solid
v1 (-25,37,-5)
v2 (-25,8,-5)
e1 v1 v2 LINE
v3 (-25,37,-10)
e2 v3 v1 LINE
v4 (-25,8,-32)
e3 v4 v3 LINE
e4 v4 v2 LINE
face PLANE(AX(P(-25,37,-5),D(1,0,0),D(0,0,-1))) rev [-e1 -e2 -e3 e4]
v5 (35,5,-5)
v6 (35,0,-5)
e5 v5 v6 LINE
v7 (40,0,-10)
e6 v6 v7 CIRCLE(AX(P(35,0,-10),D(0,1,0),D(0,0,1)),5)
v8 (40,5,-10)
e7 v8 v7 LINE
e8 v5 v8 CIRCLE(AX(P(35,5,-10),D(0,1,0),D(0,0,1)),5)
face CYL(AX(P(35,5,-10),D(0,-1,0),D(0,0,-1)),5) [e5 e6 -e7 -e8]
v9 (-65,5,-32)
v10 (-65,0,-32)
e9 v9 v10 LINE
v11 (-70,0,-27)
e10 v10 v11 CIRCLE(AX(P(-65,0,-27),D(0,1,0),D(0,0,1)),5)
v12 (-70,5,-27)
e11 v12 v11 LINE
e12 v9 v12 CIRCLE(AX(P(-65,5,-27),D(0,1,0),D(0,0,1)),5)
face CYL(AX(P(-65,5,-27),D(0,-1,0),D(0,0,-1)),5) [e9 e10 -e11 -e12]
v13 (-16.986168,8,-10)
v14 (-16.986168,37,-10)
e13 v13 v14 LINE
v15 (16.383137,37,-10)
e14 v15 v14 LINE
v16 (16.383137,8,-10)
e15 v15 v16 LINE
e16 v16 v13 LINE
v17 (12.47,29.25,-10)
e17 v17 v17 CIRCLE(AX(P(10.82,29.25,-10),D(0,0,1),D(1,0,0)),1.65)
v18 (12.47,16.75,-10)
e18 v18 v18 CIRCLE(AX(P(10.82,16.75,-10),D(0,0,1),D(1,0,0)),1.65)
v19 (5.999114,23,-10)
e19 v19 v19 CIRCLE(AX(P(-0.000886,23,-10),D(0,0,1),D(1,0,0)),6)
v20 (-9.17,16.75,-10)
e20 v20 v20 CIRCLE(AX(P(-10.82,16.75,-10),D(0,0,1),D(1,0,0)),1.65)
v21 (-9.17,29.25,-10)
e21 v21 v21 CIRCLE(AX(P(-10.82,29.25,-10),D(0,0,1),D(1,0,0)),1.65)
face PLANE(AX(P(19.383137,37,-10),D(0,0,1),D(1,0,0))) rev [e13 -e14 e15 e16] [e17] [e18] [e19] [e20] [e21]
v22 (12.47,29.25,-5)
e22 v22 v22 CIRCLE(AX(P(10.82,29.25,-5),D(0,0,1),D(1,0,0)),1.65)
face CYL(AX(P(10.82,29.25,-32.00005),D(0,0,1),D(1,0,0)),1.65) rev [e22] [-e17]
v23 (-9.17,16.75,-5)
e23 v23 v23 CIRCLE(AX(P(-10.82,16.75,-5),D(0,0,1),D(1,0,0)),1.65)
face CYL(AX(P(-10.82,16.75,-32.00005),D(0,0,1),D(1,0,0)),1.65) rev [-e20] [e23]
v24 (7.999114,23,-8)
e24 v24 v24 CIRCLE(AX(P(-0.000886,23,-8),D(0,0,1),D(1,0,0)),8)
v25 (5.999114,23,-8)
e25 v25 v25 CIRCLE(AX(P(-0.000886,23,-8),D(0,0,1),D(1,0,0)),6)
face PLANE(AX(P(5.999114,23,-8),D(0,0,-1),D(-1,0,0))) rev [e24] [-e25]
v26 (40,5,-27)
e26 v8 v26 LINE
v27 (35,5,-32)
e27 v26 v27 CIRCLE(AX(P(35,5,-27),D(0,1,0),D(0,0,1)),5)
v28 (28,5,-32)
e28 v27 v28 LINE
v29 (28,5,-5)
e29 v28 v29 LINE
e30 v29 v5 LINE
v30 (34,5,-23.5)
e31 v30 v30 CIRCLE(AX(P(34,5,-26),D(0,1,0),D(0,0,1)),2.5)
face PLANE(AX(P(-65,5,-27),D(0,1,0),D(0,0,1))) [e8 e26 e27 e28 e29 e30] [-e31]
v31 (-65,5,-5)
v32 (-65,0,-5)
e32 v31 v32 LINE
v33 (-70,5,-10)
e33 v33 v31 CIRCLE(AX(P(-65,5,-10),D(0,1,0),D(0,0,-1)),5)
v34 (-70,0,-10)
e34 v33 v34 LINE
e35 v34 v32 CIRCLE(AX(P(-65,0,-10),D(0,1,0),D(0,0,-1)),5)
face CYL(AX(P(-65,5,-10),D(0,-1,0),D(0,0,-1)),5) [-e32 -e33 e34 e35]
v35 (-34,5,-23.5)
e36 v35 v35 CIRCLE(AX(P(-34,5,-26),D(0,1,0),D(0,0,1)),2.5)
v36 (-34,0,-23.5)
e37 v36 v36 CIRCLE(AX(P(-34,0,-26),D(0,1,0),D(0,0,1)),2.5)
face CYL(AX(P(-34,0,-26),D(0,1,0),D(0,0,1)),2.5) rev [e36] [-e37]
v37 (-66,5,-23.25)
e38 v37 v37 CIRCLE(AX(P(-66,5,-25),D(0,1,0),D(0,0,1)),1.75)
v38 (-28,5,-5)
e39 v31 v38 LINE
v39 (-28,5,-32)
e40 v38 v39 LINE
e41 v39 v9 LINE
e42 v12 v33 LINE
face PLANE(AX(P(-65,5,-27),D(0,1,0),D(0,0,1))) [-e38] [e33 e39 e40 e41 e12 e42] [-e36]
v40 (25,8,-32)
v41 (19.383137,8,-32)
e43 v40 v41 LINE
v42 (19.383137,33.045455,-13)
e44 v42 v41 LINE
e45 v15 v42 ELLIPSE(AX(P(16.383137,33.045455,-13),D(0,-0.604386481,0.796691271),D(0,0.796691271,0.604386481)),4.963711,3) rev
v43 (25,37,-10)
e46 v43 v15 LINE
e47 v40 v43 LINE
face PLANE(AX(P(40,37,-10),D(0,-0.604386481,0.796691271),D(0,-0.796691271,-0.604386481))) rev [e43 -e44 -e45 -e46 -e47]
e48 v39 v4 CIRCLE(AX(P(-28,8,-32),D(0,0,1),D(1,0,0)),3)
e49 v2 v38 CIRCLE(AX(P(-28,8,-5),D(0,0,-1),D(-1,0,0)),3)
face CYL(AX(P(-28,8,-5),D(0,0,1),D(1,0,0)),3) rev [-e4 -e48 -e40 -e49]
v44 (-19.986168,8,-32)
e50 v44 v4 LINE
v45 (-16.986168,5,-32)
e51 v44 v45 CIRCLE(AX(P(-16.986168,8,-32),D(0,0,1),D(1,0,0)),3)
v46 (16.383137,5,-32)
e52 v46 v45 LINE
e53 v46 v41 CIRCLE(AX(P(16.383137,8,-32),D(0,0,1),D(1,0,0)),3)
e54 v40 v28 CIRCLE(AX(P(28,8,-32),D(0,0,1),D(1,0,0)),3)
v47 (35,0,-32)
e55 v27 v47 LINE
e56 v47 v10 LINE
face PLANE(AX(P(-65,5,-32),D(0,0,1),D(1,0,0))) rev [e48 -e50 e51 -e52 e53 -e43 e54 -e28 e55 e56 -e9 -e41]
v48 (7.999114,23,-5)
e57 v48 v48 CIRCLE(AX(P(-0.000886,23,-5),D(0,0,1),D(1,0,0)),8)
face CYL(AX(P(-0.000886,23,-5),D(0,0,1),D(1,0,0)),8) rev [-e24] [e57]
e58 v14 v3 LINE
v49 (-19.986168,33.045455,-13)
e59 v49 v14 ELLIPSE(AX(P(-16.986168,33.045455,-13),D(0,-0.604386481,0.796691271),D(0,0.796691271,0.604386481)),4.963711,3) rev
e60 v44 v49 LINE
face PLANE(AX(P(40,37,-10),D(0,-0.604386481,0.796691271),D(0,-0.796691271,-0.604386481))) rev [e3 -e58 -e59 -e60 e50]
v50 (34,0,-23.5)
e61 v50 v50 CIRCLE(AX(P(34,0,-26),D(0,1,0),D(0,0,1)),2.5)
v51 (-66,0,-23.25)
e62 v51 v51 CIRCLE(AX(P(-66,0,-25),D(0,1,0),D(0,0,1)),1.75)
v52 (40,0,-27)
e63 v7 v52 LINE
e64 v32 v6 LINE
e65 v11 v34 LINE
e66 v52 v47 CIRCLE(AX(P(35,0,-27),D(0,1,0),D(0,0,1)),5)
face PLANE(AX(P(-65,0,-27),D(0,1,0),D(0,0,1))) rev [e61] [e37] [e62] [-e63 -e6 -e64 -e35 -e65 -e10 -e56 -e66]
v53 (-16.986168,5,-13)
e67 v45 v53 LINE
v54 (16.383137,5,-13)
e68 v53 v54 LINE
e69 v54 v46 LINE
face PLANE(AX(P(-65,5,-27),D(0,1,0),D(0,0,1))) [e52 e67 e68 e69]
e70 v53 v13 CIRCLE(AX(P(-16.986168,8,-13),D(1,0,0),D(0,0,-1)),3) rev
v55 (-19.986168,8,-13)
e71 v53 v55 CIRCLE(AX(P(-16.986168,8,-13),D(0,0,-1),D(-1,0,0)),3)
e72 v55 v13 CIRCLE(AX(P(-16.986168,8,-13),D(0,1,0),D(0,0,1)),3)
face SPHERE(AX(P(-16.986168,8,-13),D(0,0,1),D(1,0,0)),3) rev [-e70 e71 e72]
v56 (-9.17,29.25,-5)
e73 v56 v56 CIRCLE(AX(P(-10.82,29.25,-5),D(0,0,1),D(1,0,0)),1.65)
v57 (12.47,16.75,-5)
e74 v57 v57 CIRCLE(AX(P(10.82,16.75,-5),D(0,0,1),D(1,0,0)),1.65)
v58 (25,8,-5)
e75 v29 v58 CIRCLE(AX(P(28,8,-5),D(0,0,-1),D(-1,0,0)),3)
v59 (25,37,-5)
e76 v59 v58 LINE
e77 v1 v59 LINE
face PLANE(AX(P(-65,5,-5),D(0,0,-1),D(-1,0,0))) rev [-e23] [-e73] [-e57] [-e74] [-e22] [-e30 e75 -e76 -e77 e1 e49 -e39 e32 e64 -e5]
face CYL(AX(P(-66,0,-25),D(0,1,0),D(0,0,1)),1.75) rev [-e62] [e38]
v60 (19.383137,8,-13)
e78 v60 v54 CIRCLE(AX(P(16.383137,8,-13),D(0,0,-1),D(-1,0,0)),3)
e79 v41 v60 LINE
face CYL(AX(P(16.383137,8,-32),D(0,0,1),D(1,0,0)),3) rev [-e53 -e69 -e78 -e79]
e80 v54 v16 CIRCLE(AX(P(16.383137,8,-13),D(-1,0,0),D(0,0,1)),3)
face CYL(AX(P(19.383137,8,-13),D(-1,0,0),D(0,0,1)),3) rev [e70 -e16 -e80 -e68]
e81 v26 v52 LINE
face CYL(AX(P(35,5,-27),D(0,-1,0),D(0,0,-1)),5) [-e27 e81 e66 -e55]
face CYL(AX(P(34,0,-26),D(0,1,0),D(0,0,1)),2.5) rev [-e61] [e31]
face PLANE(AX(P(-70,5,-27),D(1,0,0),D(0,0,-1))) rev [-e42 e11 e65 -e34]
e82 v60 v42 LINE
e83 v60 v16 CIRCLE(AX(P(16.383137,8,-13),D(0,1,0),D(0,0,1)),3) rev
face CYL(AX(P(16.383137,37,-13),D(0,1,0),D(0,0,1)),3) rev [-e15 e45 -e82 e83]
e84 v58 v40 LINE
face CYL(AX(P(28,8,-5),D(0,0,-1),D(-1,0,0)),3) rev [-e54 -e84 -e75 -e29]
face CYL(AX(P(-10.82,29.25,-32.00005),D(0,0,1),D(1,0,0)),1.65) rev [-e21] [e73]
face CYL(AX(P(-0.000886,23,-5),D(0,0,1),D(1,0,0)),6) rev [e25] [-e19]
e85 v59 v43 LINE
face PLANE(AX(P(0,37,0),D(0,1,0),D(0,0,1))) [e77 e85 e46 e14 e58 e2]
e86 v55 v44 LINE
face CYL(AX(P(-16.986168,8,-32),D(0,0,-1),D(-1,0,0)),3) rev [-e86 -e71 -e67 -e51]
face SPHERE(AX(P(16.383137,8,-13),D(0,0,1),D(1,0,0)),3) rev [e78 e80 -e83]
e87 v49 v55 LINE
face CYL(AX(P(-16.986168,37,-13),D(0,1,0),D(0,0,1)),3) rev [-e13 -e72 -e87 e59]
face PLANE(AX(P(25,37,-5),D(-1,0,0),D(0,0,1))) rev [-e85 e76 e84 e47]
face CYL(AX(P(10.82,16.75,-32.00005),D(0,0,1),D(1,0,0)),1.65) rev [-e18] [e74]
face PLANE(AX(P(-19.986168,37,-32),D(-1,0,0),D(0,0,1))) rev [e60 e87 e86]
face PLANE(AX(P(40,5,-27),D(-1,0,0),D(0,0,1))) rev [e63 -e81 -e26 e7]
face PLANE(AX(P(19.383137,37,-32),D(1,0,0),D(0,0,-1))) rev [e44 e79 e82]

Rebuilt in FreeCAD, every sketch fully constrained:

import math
import FreeCAD as App
import Part
import Sketcher

V = App.Vector


def edges_at(feature, points):
    """Names of the edges that pass closest to the given points."""
    edges = feature.Shape.Edges
    near = lambda p: min(range(len(edges)), key=lambda i: edges[i].distToShape(Part.Vertex(*p))[0])
    return sorted({f"Edge{near(p) + 1}" for p in points})


def add_polygon(sketch, points):
    """Adds a closed chain of lines whose ends are joined by coincident constraints."""
    first, n = sketch.GeometryCount, len(points)
    for a, b in zip(points, points[1:] + points[:1]):
        sketch.addGeometry(Part.LineSegment(App.Vector(*a, 0), App.Vector(*b, 0)), False)
    for i in range(n):
        sketch.addConstraint(Sketcher.Constraint("Coincident", first + i, 2, first + (i + 1) % n, 1))

doc = App.newDocument("Part")
params = doc.addObject("Spreadsheet::Sheet", "Params")
for row, (alias, value) in enumerate([
    ("sketch1_radius", "5 mm"),
    ("sketch1_width", "100 mm"),
    ("sketch1_height", "17 mm"),
    ("pad1_length", "5 mm"),
    ("sketch2_diameter", "5 mm"),
    ("sketch2_diameter2", "3.5 mm"),
    ("sketch3_width", "50 mm"),
    ("sketch3_height", "27 mm"),
    ("sketch3_height2", "22 mm"),
    ("pad2_length", "32 mm"),
    ("sketch4_diameter", "3.3 mm"),
    ("sketch5_diameter", "12 mm"),
    ("hole_diameter", "12 mm"),
    ("hole_cbore_diameter", "16 mm"),
    ("hole_cbore_depth", "3 mm"),
    ("fillet_radius", "3 mm"),
    ("sketch6_width", "29 mm"),
    ("sketch6_height", "22 mm"),
], start=1):
    params.set(f"A{row}", alias)
    params.set(f"B{row}", "=" + value)
    params.setAlias(f"B{row}", alias)

body = doc.addObject("PartDesign::Body", "Body")

# Sketch on XZ plane
sketch1 = body.newObject("Sketcher::SketchObject", "Sketch")
sketch1.AttachmentSupport = (doc.getObject("XZ_Plane"), [""])
sketch1.MapMode = "FlatFace"
sketch1.addGeometry([
    Part.LineSegment(V(-70, -27, 0), V(-70, -10, 0)),  # 0
    Part.ArcOfCircle(Part.Circle(V(-65, -10, 0), V(0, 0, 1), 5), math.radians(90), math.radians(180)),  # 1
    Part.LineSegment(V(-65, -5, 0), V(35, -5, 0)),  # 2
    Part.ArcOfCircle(Part.Circle(V(35, -10, 0), V(0, 0, 1), 5), math.radians(0), math.radians(90)),  # 3
    Part.LineSegment(V(40, -10, 0), V(40, -27, 0)),  # 4
    Part.ArcOfCircle(Part.Circle(V(35, -27, 0), V(0, 0, 1), 5), math.radians(-90), math.radians(0)),  # 5
    Part.LineSegment(V(35, -32, 0), V(-65, -32, 0)),  # 6
    Part.ArcOfCircle(Part.Circle(V(-65, -27, 0), V(0, 0, 1), 5), math.radians(180), math.radians(270)),  # 7
], False)
sketch1.addConstraint([
    Sketcher.Constraint("Tangent", 0, 2, 1, 2),
    Sketcher.Constraint("Tangent", 1, 1, 2, 1),
    Sketcher.Constraint("Tangent", 2, 2, 3, 2),
    Sketcher.Constraint("Tangent", 3, 1, 4, 1),
    Sketcher.Constraint("Tangent", 4, 2, 5, 2),
    Sketcher.Constraint("Tangent", 5, 1, 6, 1),
    Sketcher.Constraint("Tangent", 6, 2, 7, 2),
    Sketcher.Constraint("Tangent", 7, 1, 0, 1),
    Sketcher.Constraint("Vertical", 0),
    Sketcher.Constraint("Horizontal", 2),
    Sketcher.Constraint("Vertical", 4),
    Sketcher.Constraint("Horizontal", 6),
    Sketcher.Constraint("Equal", 1, 3),
    Sketcher.Constraint("Equal", 3, 5),
    Sketcher.Constraint("Equal", 5, 7),
    Sketcher.Constraint("Radius", 1, 5.0),
    Sketcher.Constraint("DistanceX", 2, 1, 2, 2, 100.0),
    Sketcher.Constraint("DistanceY", 0, 1, 0, 2, 17.0),
    Sketcher.Constraint("DistanceX", 1, 3, -1, 1, 65.0),
    Sketcher.Constraint("DistanceY", 1, 3, -1, 1, 10.0),
])
sketch1.setExpression("Constraints[15]", "Params.sketch1_radius")
sketch1.setExpression("Constraints[16]", "Params.sketch1_width")
sketch1.setExpression("Constraints[17]", "Params.sketch1_height")
pad1 = body.newObject("PartDesign::Pad", "Pad")
pad1.Profile = sketch1
pad1.setExpression("Length", "Params.pad1_length")
pad1.Reversed = True

# Sketch on XZ plane
sketch2 = body.newObject("Sketcher::SketchObject", "Sketch001")
sketch2.AttachmentSupport = (doc.getObject("XZ_Plane"), [""])
sketch2.MapMode = "FlatFace"
sketch2.AttachmentOffset = App.Placement(V(0, 0, -5), App.Rotation())
sketch2.addGeometry([
    Part.Circle(V(-34, -26, 0), V(0, 0, 1), 2.5),
    Part.Circle(V(34, -26, 0), V(0, 0, 1), 2.5),
    Part.Circle(V(-66, -25, 0), V(0, 0, 1), 1.75),
], False)
sketch2.addConstraint([
    Sketcher.Constraint("Equal", 0, 1),
    Sketcher.Constraint("Symmetric", 0, 3, 1, 3, -2),
    Sketcher.Constraint("Diameter", 0, 5.0),
    Sketcher.Constraint("Diameter", 2, 3.5),
    Sketcher.Constraint("DistanceX", 0, 3, -1, 1, 34.0),
    Sketcher.Constraint("DistanceY", 0, 3, -1, 1, 26.0),
    Sketcher.Constraint("DistanceX", 2, 3, -1, 1, 66.0),
    Sketcher.Constraint("DistanceY", 2, 3, -1, 1, 25.0),
])
sketch2.setExpression("Constraints[2]", "Params.sketch2_diameter")
sketch2.setExpression("Constraints[3]", "Params.sketch2_diameter2")
pocket1 = body.newObject("PartDesign::Pocket", "Pocket")
pocket1.Profile = sketch2
pocket1.Type = "ThroughAll"
pocket1.Reversed = True

# Sketch on XZ plane
sketch3 = body.newObject("Sketcher::SketchObject", "Sketch002")
sketch3.AttachmentSupport = (doc.getObject("XZ_Plane"), [""])
sketch3.MapMode = "FlatFace"
sketch3.AttachmentOffset = App.Placement(V(0, 0, -5), App.Rotation())
add_polygon(sketch3, [(-25, -32), (-25, -5), (25, -5), (25, -32), (19.383137, -32), (19.383137, -10), (-19.986168, -10), (-19.986168, -32)])  # lines 0-7
sketch3.addConstraint([
    Sketcher.Constraint("Vertical", 0),
    Sketcher.Constraint("Horizontal", 1),
    Sketcher.Constraint("Vertical", 2),
    Sketcher.Constraint("Horizontal", 3),
    Sketcher.Constraint("Vertical", 4),
    Sketcher.Constraint("Horizontal", 5),
    Sketcher.Constraint("Vertical", 6),
    Sketcher.Constraint("Horizontal", 7),
    Sketcher.Constraint("Symmetric", 2, 2, 7, 2, -2),
    Sketcher.Constraint("DistanceX", 1, 1, 1, 2, 50.0),
    Sketcher.Constraint("DistanceY", 0, 1, 0, 2, 27.0),
    Sketcher.Constraint("DistanceY", 4, 1, 4, 2, 22.0),
    Sketcher.Constraint("DistanceY", 0, 2, -1, 1, 5.0),
    Sketcher.Constraint("DistanceX", 3, 2, 3, 1, 5.616863),
    Sketcher.Constraint("DistanceX", 5, 2, 5, 1, 39.369305),
])
sketch3.setExpression("Constraints[17]", "Params.sketch3_width")
sketch3.setExpression("Constraints[18]", "Params.sketch3_height")
sketch3.setExpression("Constraints[19]", "Params.sketch3_height2")
pad2 = body.newObject("PartDesign::Pad", "Pad001")
pad2.Profile = sketch3
pad2.setExpression("Length", "Params.pad2_length")
pad2.Reversed = True

# Sketch on XY plane
sketch4 = body.newObject("Sketcher::SketchObject", "Sketch003")
sketch4.AttachmentSupport = (doc.getObject("XY_Plane"), [""])
sketch4.MapMode = "FlatFace"
sketch4.AttachmentOffset = App.Placement(V(0, 0, -5), App.Rotation())
sketch4.addGeometry([
    Part.Circle(V(-10.82, 29.25, 0), V(0, 0, 1), 1.65),
    Part.Circle(V(10.82, 29.25, 0), V(0, 0, 1), 1.65),
    Part.Circle(V(-10.82, 16.75, 0), V(0, 0, 1), 1.65),
    Part.Circle(V(10.82, 16.75, 0), V(0, 0, 1), 1.65),
], False)
sketch4.addConstraint([
    Sketcher.Constraint("Equal", 0, 1),
    Sketcher.Constraint("Equal", 1, 2),
    Sketcher.Constraint("Equal", 2, 3),
    Sketcher.Constraint("Symmetric", 0, 3, 1, 3, -2),
    Sketcher.Constraint("Symmetric", 2, 3, 3, 3, -2),
    Sketcher.Constraint("Vertical", 0, 3, 2, 3),
    Sketcher.Constraint("Diameter", 0, 3.3),
    Sketcher.Constraint("DistanceY", 2, 3, 0, 3, 12.5),
    Sketcher.Constraint("DistanceX", 0, 3, -1, 1, 10.82),
    Sketcher.Constraint("DistanceY", -1, 1, 0, 3, 29.25),
])
sketch4.setExpression("Constraints[6]", "Params.sketch4_diameter")
pocket2 = body.newObject("PartDesign::Pocket", "Pocket001")
pocket2.Profile = sketch4
pocket2.Type = "ThroughAll"

# Sketch on XY plane
sketch5 = body.newObject("Sketcher::SketchObject", "Sketch004")
sketch5.AttachmentSupport = (doc.getObject("XY_Plane"), [""])
sketch5.MapMode = "FlatFace"
sketch5.AttachmentOffset = App.Placement(V(0, 0, -5), App.Rotation())
sketch5.addGeometry(Part.Circle(V(-0.000886, 23, 0), V(0, 0, 1), 6), False)
sketch5.addConstraint([
    Sketcher.Constraint("Diameter", 0, 12.0),
    Sketcher.Constraint("DistanceY", -1, 1, 0, 3, 23.0),
    Sketcher.Constraint("DistanceX", 0, 3, -1, 1, 0.000886),
])
sketch5.setExpression("Constraints[0]", "Params.sketch5_diameter")
doc.recompute()
hole = body.newObject("PartDesign::Hole", "Hole")
hole.Profile = sketch5
hole.ThreadType = "None"
hole.setExpression("Diameter", "Params.hole_diameter")
hole.DepthType = "ThroughAll"
hole.HoleCutType = "Counterbore"
hole.setExpression("HoleCutDiameter", "Params.hole_cbore_diameter")
hole.setExpression("HoleCutDepth", "Params.hole_cbore_depth")
doc.recompute()

fillet = body.newObject("PartDesign::Fillet", "Fillet")
fillet.Base = (hole, edges_at(hole, [
    (-25, 5, -18.5),
    (19.383, 21, -10),
    (-19.986, 21, -10),
    (-19.986, 5, -21),
    (19.383, 5, -21),
    (25, 5, -18.5),
    (-0.302, 5, -10),
]))
fillet.setExpression("Radius", "Params.fillet_radius")

# Sketch on YZ plane
sketch6 = body.newObject("Sketcher::SketchObject", "Sketch005")
sketch6.AttachmentSupport = (doc.getObject("YZ_Plane"), [""])
sketch6.MapMode = "FlatFace"
sketch6.AttachmentOffset = App.Placement(V(0, 0, -25), App.Rotation())
add_polygon(sketch6, [(8, -32), (37, -10), (37, -32)])  # lines 0-2
sketch6.addConstraint([
    Sketcher.Constraint("Vertical", 1),
    Sketcher.Constraint("Horizontal", 2),
    Sketcher.Constraint("DistanceX", 2, 2, 2, 1, 29.0),
    Sketcher.Constraint("DistanceY", 1, 2, 1, 1, 22.0),
    Sketcher.Constraint("DistanceX", -1, 1, 0, 2, 37.0),
    Sketcher.Constraint("DistanceY", 0, 2, -1, 1, 10.0),
])
sketch6.setExpression("Constraints[5]", "Params.sketch6_width")
sketch6.setExpression("Constraints[6]", "Params.sketch6_height")
pocket3 = body.newObject("PartDesign::Pocket", "Pocket002")
pocket3.Profile = sketch6
pocket3.Type = "ThroughAll"
pocket3.Reversed = True

doc.recompute()
